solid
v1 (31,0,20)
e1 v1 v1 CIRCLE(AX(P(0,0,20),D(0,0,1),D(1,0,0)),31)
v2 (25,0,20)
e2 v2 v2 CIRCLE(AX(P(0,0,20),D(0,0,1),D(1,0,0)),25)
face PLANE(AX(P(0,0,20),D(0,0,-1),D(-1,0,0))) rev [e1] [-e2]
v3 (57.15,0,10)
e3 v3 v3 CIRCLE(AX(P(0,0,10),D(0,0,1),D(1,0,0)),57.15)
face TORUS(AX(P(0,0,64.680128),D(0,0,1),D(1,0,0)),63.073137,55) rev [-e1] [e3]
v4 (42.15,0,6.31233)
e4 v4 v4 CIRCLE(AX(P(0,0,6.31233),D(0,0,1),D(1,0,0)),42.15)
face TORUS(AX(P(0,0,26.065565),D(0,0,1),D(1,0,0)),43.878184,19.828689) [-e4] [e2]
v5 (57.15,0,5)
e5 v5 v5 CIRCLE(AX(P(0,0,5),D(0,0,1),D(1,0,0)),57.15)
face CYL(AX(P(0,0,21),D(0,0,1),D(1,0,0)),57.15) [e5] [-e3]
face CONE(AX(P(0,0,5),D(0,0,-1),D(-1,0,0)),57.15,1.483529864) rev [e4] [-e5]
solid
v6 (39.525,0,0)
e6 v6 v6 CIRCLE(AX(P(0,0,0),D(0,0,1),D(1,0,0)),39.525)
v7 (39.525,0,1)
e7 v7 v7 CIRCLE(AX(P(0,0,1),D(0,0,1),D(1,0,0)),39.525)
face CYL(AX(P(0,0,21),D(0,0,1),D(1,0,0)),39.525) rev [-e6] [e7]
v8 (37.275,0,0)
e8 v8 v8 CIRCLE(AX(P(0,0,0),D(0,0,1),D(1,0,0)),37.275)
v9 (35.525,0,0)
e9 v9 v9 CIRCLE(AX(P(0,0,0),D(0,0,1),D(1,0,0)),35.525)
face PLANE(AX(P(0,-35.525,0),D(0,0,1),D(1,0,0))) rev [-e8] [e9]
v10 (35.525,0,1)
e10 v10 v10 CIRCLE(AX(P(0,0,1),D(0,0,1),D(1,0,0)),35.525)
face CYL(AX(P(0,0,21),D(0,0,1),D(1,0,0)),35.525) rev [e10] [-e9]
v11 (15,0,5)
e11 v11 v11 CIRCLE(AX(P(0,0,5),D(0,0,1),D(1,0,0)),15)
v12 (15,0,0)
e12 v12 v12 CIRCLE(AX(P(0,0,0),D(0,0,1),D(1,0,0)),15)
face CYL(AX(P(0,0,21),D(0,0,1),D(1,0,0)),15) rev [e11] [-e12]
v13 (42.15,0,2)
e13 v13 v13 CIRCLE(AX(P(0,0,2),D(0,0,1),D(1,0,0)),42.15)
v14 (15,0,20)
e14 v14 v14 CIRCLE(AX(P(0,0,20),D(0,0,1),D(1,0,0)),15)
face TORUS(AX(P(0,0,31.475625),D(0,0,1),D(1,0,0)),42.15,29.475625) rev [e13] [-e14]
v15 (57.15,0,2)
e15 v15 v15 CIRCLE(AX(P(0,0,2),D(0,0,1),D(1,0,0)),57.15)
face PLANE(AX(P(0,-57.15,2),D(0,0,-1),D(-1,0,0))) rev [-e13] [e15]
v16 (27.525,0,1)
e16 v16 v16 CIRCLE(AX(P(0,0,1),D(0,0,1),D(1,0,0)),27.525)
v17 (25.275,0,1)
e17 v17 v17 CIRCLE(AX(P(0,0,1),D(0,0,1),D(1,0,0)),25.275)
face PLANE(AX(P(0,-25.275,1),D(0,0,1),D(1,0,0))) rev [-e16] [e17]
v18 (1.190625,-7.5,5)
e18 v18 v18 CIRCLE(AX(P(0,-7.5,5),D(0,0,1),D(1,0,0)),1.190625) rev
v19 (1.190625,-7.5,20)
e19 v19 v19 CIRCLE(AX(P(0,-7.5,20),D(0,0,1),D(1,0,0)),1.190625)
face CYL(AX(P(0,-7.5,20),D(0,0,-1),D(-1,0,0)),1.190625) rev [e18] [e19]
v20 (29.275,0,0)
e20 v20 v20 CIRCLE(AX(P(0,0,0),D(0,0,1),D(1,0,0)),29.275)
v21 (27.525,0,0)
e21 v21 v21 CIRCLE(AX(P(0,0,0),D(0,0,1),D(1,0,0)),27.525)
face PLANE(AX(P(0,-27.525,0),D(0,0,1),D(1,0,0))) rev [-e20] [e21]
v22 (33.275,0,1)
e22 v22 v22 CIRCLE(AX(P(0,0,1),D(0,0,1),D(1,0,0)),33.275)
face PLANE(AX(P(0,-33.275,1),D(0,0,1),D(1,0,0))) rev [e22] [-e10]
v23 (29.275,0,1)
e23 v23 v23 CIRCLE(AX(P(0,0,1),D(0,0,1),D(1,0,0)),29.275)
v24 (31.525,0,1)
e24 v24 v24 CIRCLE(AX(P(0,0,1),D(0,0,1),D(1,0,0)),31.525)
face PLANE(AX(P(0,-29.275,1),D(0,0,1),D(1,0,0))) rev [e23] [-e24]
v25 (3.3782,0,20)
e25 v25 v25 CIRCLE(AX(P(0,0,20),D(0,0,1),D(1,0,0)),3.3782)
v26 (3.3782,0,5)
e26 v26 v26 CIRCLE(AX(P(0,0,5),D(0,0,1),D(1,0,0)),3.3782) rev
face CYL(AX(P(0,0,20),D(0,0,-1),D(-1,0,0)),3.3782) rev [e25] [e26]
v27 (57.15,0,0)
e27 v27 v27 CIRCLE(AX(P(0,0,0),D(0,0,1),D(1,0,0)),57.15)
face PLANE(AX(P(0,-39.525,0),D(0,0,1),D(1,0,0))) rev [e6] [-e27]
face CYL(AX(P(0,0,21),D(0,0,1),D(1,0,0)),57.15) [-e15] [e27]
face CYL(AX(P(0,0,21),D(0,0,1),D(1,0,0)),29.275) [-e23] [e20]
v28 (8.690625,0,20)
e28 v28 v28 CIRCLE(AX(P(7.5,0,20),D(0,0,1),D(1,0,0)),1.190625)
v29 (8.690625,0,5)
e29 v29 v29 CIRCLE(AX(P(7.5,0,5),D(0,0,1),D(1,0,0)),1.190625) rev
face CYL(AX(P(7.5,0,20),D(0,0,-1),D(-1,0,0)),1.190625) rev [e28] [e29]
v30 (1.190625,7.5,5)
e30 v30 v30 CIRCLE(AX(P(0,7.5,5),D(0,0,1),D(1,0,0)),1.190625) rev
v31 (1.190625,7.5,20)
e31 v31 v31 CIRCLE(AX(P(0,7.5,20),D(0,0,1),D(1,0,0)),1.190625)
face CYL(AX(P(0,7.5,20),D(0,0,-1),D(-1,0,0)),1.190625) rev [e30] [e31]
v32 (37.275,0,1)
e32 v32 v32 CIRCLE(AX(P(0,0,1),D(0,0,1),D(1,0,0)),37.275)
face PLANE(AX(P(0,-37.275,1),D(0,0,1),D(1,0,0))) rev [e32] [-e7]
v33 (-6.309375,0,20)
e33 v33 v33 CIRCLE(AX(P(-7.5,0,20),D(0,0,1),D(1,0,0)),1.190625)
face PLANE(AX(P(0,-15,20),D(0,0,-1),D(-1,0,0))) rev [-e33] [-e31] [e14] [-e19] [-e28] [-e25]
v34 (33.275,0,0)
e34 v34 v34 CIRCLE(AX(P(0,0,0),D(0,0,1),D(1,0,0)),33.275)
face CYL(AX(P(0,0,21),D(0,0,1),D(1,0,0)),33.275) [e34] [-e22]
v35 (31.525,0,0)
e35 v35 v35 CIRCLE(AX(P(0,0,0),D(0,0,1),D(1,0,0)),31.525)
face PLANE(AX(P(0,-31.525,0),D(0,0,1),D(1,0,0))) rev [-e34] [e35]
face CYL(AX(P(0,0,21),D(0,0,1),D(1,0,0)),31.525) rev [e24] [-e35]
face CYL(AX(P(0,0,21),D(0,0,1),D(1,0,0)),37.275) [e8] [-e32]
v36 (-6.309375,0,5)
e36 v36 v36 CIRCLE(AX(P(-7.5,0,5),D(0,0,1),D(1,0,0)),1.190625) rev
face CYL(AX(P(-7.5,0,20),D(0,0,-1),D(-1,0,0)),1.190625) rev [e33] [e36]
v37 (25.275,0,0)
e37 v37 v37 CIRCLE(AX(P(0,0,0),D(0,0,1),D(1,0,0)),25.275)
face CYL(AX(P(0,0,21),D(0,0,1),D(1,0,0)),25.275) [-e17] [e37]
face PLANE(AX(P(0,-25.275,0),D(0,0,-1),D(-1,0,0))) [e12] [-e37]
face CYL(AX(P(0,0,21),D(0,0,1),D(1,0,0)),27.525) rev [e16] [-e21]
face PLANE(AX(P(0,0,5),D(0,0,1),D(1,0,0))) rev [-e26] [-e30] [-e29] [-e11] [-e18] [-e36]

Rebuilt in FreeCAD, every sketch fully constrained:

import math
import FreeCAD as App
import Part
import Sketcher

V = App.Vector
Q = App.Units.Quantity

doc = App.newDocument("Part")
body = doc.addObject("PartDesign::Body", "Body")
body.AllowCompound = True

# Sketch on YZ plane
sketch1 = body.newObject("Sketcher::SketchObject", "Sketch")
sketch1.AttachmentSupport = (doc.getObject("YZ_Plane"), [""])
sketch1.MapMode = "FlatFace"
sketch1.addGeometry([
    Part.LineSegment(V(-57.1, 10, 0), V(-57.1, 5, 0)),  # 0
    Part.LineSegment(V(-57.1, 5, 0), V(-42.1, 6.3, 0)),  # 1
    Part.ArcOfCircle(Part.Circle(V(-43.9, 26.1, 0), V(0, 0, 1), 19.8), math.radians(-85), math.radians(-18)),  # 2
    Part.LineSegment(V(-25, 20, 0), V(-31, 20, 0)),  # 3
    Part.ArcOfCircle(Part.Circle(V(-63.1, 64.7, 0), V(0, 0, 1), 55), math.radians(-84), math.radians(-54)),  # 4
    Part.ArcOfCircle(Part.Circle(V(-42.1, 31.5, 0), V(0, 0, 1), 29.5), math.radians(-90), math.radians(-23)),  # 5
    Part.LineSegment(V(-42.1, 2, 0), V(-57.1, 2, 0)),  # 6
    Part.LineSegment(V(-57.1, 2, 0), V(-57.1, 0, 0)),  # 7
    Part.LineSegment(V(-57.1, 0, 0), V(-39.5, 0, 0)),  # 8
    Part.LineSegment(V(-39.5, 0, 0), V(-39.5, 1, 0)),  # 9
    Part.LineSegment(V(-39.5, 1, 0), V(-37.3, 1, 0)),  # 10
    Part.LineSegment(V(-37.3, 1, 0), V(-37.3, 0, 0)),  # 11
    Part.LineSegment(V(-37.3, 0, 0), V(-35.5, 0, 0)),  # 12
    Part.LineSegment(V(-35.5, 0, 0), V(-35.5, 1, 0)),  # 13
    Part.LineSegment(V(-35.5, 1, 0), V(-33.3, 1, 0)),  # 14
    Part.LineSegment(V(-33.3, 1, 0), V(-33.3, 0, 0)),  # 15
    Part.LineSegment(V(-33.3, 0, 0), V(-31.5, 0, 0)),  # 16
    Part.LineSegment(V(-31.5, 0, 0), V(-31.5, 1, 0)),  # 17
    Part.LineSegment(V(-31.5, 1, 0), V(-29.3, 1, 0)),  # 18
    Part.LineSegment(V(-29.3, 1, 0), V(-29.3, 0, 0)),  # 19
    Part.LineSegment(V(-29.3, 0, 0), V(-27.5, 0, 0)),  # 20
    Part.LineSegment(V(-27.5, 0, 0), V(-27.5, 1, 0)),  # 21
    Part.LineSegment(V(-27.5, 1, 0), V(-25.3, 1, 0)),  # 22
    Part.LineSegment(V(-25.3, 1, 0), V(-25.3, 0, 0)),  # 23
    Part.LineSegment(V(-25.3, 0, 0), V(-15, 0, 0)),  # 24
    Part.LineSegment(V(-15, 0, 0), V(-15, 5, 0)),  # 25
    Part.LineSegment(V(-15, 5, 0), V(0, 5, 0)),  # 26
    Part.LineSegment(V(0, 5, 0), V(0, 20, 0)),  # 27
    Part.LineSegment(V(0, 20, 0), V(-15, 20, 0)),  # 28
], False)
sketch1.addConstraint([
    Sketcher.Constraint("Coincident", 0, 2, 1, 1),
    Sketcher.Constraint("Tangent", 1, 2, 2, 1),
    Sketcher.Constraint("Coincident", 2, 2, 3, 1),
    Sketcher.Constraint("Coincident", 3, 2, 4, 2),
    Sketcher.Constraint("Coincident", 4, 1, 0, 1),
    Sketcher.Constraint("Tangent", 5, 1, 6, 1),
    Sketcher.Constraint("Coincident", 6, 2, 7, 1),
    Sketcher.Constraint("Coincident", 7, 2, 8, 1),
    Sketcher.Constraint("Coincident", 8, 2, 9, 1),
    Sketcher.Constraint("Coincident", 9, 2, 10, 1),
    Sketcher.Constraint("Coincident", 10, 2, 11, 1),
    Sketcher.Constraint("Coincident", 11, 2, 12, 1),
    Sketcher.Constraint("Coincident", 12, 2, 13, 1),
    Sketcher.Constraint("Coincident", 13, 2, 14, 1),
    Sketcher.Constraint("Coincident", 14, 2, 15, 1),
    Sketcher.Constraint("Coincident", 15, 2, 16, 1),
    Sketcher.Constraint("Coincident", 16, 2, 17, 1),
    Sketcher.Constraint("Coincident", 17, 2, 18, 1),
    Sketcher.Constraint("Coincident", 18, 2, 19, 1),
    Sketcher.Constraint("Coincident", 19, 2, 20, 1),
    Sketcher.Constraint("Coincident", 20, 2, 21, 1),
    Sketcher.Constraint("Coincident", 21, 2, 22, 1),
    Sketcher.Constraint("Coincident", 22, 2, 23, 1),
    Sketcher.Constraint("Coincident", 23, 2, 24, 1),
    Sketcher.Constraint("Coincident", 24, 2, 25, 1),
    Sketcher.Constraint("Coincident", 25, 2, 26, 1),
    Sketcher.Constraint("Coincident", 26, 2, 27, 1),
    Sketcher.Constraint("Coincident", 27, 2, 28, 1),
    Sketcher.Constraint("Coincident", 28, 2, 5, 2),
    Sketcher.Constraint("Vertical", 0),
    Sketcher.Constraint("Horizontal", 3),
    Sketcher.Constraint("Horizontal", 6),
    Sketcher.Constraint("Vertical", 7),
    Sketcher.Constraint("Horizontal", 8),
    Sketcher.Constraint("Vertical", 9),
    Sketcher.Constraint("Horizontal", 10),
    Sketcher.Constraint("Vertical", 11),
    Sketcher.Constraint("Horizontal", 12),
    Sketcher.Constraint("Vertical", 13),
    Sketcher.Constraint("Horizontal", 14),
    Sketcher.Constraint("Vertical", 15),
    Sketcher.Constraint("Horizontal", 16),
    Sketcher.Constraint("Vertical", 17),
    Sketcher.Constraint("Horizontal", 18),
    Sketcher.Constraint("Vertical", 19),
    Sketcher.Constraint("Horizontal", 20),
    Sketcher.Constraint("Vertical", 21),
    Sketcher.Constraint("Horizontal", 22),
    Sketcher.Constraint("Vertical", 23),
    Sketcher.Constraint("Horizontal", 24),
    Sketcher.Constraint("Vertical", 25),
    Sketcher.Constraint("Horizontal", 26),
    Sketcher.Constraint("Vertical", 27),
    Sketcher.Constraint("Horizontal", 28),
    Sketcher.Constraint("PointOnObject", 7, 2, -1),
    Sketcher.Constraint("PointOnObject", 11, 2, -1),
    Sketcher.Constraint("PointOnObject", 15, 2, -1),
    Sketcher.Constraint("PointOnObject", 19, 2, -1),
    Sketcher.Constraint("PointOnObject", 23, 2, -1),
    Sketcher.Constraint("PointOnObject", 26, 2, -2),
    Sketcher.Constraint("Horizontal", 10, 2, 13, 2),
    Sketcher.Constraint("Horizontal", 14, 2, 17, 2),
    Sketcher.Constraint("Horizontal", 18, 2, 21, 2),
    Sketcher.Constraint("Horizontal", 0, 2, 25, 2),
    Sketcher.Constraint("Horizontal", 3, 2, 27, 2),
    Sketcher.Constraint("Vertical", 5, 3, 1, 2),
    Sketcher.Constraint("Vertical", 4, 1, 6, 2),
    Sketcher.Constraint("Vertical", 25, 2, 28, 2),
    Sketcher.Constraint("Equal", 10, 14),
    Sketcher.Constraint("Equal", 12, 16),
    Sketcher.Constraint("Equal", 14, 18),
    Sketcher.Constraint("Equal", 16, 20),
    Sketcher.Constraint("Equal", 18, 22),
    Sketcher.Constraint("Equal", 6, 26),
    Sketcher.Constraint("Equal", 0, 25),
    Sketcher.Constraint("Equal", 28, 27),
    Sketcher.Constraint("Radius", 4, 55.0),
    Sketcher.Constraint("DistanceX", 3, 2, 3, 1, 6.0),
    Sketcher.Constraint("DistanceX", 6, 2, 6, 1, 15.0),
    Sketcher.Constraint("DistanceY", 0, 2, 0, 1, 5.0),
    Sketcher.Constraint("DistanceY", 7, 2, 7, 1, 2.0),
    Sketcher.Constraint("DistanceY", 9, 1, 9, 2, 1.0),
    Sketcher.Constraint("Angle", 1, Q("5 deg")),
    Sketcher.Constraint("DistanceX", 2, 2, -1, 1, 25.0),
    Sketcher.Constraint("DistanceX", 8, 2, 12, 2, 4.0),
    Sketcher.Constraint("DistanceX", 10, 1, 10, 2, 2.25),
    Sketcher.Constraint("DistanceX", 8, 1, 8, 2, 17.625),
    Sketcher.Constraint("DistanceX", 24, 1, 24, 2, 10.275),
])
revolution = body.newObject("PartDesign::Revolution", "Revolution")
revolution.Profile = sketch1
revolution.ReferenceAxis = (sketch1, ["V_Axis"])
revolution.Angle = 360

# Sketch on XY plane
sketch2 = body.newObject("Sketcher::SketchObject", "Sketch001")
sketch2.AttachmentSupport = (doc.getObject("XY_Plane"), [""])
sketch2.MapMode = "FlatFace"
sketch2.addGeometry([
    Part.Circle(V(0, -7.5, 0), V(0, 0, 1), 1.2),  # 0
    Part.Circle(V(-7.5, 0, 0), V(0, 0, 1), 1.2),  # 1
    Part.Circle(V(0, 7.5, 0), V(0, 0, 1), 1.2),  # 2
    Part.Circle(V(7.5, 0, 0), V(0, 0, 1), 1.2),  # 3
    Part.Circle(V(0, 0, 0), V(0, 0, 1), 3.4),  # 4
], False)
sketch2.addConstraint([
    Sketcher.Constraint("Coincident", 4, 3, -1, 1),
    Sketcher.Constraint("Equal", 0, 1),
    Sketcher.Constraint("Equal", 1, 2),
    Sketcher.Constraint("Equal", 2, 3),
    Sketcher.Constraint("Symmetric", 0, 3, 2, 3, -1, 1),
    Sketcher.Constraint("Symmetric", 1, 3, 3, 3, -1, 1),
    Sketcher.Constraint("PointOnObject", 0, 3, -2),
    Sketcher.Constraint("PointOnObject", 1, 3, -1),
    Sketcher.Constraint("DistanceY", 0, 3, 2, 3, 15.0),
    Sketcher.Constraint("DistanceX", 1, 3, 3, 3, 15.0),
    Sketcher.Constraint("Diameter", 4, 6.7564),
    Sketcher.Constraint("Diameter", 0, 2.38125),
])
pocket1 = body.newObject("PartDesign::Pocket", "Pocket")
pocket1.Profile = sketch2
pocket1.Type = "ThroughAll"
pocket1.Midplane = True

doc.recompute()
